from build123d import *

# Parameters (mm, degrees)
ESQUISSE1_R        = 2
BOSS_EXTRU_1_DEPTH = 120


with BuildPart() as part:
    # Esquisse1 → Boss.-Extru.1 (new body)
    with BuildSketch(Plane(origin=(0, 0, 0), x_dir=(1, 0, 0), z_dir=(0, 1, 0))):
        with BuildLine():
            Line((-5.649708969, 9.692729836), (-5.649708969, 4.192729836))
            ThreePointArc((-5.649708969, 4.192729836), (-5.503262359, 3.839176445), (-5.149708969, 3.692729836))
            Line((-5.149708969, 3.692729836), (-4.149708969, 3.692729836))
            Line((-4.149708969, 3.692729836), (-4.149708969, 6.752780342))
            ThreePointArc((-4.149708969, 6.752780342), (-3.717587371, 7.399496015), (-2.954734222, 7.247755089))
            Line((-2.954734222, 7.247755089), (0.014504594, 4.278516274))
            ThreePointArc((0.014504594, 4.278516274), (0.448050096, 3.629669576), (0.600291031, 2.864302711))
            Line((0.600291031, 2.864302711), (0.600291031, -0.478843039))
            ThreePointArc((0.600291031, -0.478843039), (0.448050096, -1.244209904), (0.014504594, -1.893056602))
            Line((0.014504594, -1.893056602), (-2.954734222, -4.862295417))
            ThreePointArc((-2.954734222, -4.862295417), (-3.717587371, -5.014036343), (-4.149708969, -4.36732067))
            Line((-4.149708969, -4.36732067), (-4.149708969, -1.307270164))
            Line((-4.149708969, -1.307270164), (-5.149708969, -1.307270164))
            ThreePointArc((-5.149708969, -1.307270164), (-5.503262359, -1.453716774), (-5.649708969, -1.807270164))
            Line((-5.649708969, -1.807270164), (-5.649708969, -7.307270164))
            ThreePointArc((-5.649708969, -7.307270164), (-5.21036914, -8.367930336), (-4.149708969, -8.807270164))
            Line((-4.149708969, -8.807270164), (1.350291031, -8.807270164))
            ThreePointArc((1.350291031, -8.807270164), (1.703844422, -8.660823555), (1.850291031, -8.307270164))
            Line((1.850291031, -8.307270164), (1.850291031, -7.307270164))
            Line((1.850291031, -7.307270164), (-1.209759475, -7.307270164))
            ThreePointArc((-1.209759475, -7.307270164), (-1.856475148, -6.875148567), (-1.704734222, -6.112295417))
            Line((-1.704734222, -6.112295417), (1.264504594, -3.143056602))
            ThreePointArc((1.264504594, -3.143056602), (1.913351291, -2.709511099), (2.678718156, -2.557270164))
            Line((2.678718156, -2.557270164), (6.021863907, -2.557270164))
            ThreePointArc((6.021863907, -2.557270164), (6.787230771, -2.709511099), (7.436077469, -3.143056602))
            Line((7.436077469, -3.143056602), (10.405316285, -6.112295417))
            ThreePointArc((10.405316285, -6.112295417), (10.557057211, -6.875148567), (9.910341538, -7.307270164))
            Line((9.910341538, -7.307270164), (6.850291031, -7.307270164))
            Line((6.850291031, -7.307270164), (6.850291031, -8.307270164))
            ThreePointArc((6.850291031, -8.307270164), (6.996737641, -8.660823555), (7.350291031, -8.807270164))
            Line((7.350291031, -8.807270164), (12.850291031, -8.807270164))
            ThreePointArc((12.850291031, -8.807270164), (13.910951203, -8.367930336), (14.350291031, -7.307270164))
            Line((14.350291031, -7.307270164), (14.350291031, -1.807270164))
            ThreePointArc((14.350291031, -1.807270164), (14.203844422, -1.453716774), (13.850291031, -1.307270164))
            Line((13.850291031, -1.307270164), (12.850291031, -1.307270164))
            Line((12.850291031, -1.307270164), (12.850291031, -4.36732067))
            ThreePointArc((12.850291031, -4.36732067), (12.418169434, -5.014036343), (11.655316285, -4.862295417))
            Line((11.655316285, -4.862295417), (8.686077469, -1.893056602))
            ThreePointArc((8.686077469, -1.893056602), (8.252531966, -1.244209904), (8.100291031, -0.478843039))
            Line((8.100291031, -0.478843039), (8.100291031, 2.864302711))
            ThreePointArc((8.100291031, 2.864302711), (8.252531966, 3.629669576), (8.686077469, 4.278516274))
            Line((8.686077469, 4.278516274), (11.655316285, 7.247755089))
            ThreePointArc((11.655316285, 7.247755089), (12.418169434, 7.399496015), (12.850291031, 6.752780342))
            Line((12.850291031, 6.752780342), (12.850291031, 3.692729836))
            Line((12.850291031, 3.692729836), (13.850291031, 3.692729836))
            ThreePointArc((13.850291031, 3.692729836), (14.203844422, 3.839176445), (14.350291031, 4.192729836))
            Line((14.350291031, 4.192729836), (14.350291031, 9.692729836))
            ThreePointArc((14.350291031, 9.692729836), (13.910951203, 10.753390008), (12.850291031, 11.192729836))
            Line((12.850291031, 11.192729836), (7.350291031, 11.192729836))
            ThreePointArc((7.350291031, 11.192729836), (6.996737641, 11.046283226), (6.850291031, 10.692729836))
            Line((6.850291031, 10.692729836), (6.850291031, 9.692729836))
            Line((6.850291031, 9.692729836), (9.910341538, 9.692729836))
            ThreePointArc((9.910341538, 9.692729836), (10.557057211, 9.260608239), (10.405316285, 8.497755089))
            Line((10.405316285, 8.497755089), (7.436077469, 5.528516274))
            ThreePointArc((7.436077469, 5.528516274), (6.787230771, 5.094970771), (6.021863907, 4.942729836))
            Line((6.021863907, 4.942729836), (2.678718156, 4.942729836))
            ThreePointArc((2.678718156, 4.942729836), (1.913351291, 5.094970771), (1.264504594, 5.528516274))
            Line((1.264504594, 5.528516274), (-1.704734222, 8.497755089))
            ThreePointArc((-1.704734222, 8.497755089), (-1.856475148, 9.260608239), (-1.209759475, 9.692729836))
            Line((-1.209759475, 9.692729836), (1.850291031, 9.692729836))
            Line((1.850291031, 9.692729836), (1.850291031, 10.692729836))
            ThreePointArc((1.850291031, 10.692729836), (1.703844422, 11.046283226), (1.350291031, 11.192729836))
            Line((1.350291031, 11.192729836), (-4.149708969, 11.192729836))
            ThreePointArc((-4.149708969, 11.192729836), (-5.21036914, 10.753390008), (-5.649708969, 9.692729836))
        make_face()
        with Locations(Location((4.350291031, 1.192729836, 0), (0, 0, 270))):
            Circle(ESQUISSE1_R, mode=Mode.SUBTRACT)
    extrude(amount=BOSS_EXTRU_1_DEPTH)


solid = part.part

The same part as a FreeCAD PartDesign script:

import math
import FreeCAD as App
import Part
import Sketcher
from FreeCAD import Vector
Q = App.Units.Quantity

doc = App.newDocument("Part")
params = doc.addObject("Spreadsheet::Sheet", "Params")
for row, (alias, value) in enumerate([
    ("sketch1_diameter", "4 mm"),
    ("sketch1_radius", "0.5 mm"),
    ("sketch1_radius2", "0.7 mm"),
    ("sketch1_radius3", "1.5 mm"),
    ("sketch1_width", "5.5 mm"),
    ("pad1_length", "120 mm"),
], start=1):
    params.set(f"A{row}", alias)
    params.set(f"B{row}", "=" + value)
    params.setAlias(f"B{row}", alias)

body = doc.addObject("PartDesign::Body", "Body")

# Sketch on XZ plane
sketch1 = doc.addObject("Sketcher::SketchObject", "Sketch")
body.addObject(sketch1)
sketch1.AttachmentSupport = (doc.XZ_Plane, [""])
sketch1.MapMode = "FlatFace"
sketch1.addGeometry(Part.LineSegment(Vector(-5.65, -9.69, 0), Vector(-5.65, -4.19, 0)), False)
sketch1.addGeometry(Part.ArcOfCircle(Part.Circle(Vector(-5.15, -4.19, 0), Vector(0, 0, 1), 0.5), math.radians(90), math.radians(180)), False)
sketch1.addGeometry(Part.LineSegment(Vector(-5.15, -3.69, 0), Vector(-4.15, -3.69, 0)), False)
sketch1.addGeometry(Part.LineSegment(Vector(-4.15, -3.69, 0), Vector(-4.15, -6.75, 0)), False)
sketch1.addGeometry(Part.ArcOfCircle(Part.Circle(Vector(-3.45, -6.75, 0), Vector(0, 0, 1), 0.7), math.radians(180), math.radians(315)), False)
sketch1.addGeometry(Part.LineSegment(Vector(-2.95, -7.25, 0), Vector(0.01, -4.28, 0)), False)
sketch1.addGeometry(Part.ArcOfCircle(Part.Circle(Vector(-1.4, -2.86, 0), Vector(0, 0, 1), 2), math.radians(-45), math.radians(0)), False)
sketch1.addGeometry(Part.LineSegment(Vector(0.6, -2.86, 0), Vector(0.6, 0.48, 0)), False)
sketch1.addGeometry(Part.ArcOfCircle(Part.Circle(Vector(-1.4, 0.48, 0), Vector(0, 0, 1), 2), math.radians(0), math.radians(45)), False)
sketch1.addGeometry(Part.LineSegment(Vector(0.01, 1.89, 0), Vector(-2.95, 4.86, 0)), False)
sketch1.addGeometry(Part.ArcOfCircle(Part.Circle(Vector(-3.45, 4.37, 0), Vector(0, 0, 1), 0.7), math.radians(45), math.radians(180)), False)
sketch1.addGeometry(Part.LineSegment(Vector(-4.15, 4.37, 0), Vector(-4.15, 1.31, 0)), False)
sketch1.addGeometry(Part.LineSegment(Vector(-4.15, 1.31, 0), Vector(-5.15, 1.31, 0)), False)
sketch1.addGeometry(Part.ArcOfCircle(Part.Circle(Vector(-5.15, 1.81, 0), Vector(0, 0, 1), 0.5), math.radians(-180), math.radians(-90)), False)
sketch1.addGeometry(Part.LineSegment(Vector(-5.65, 1.81, 0), Vector(-5.65, 7.31, 0)), False)
sketch1.addGeometry(Part.ArcOfCircle(Part.Circle(Vector(-4.15, 7.31, 0), Vector(0, 0, 1), 1.5), math.radians(90), math.radians(180)), False)
sketch1.addGeometry(Part.LineSegment(Vector(-4.15, 8.81, 0), Vector(1.35, 8.81, 0)), False)
sketch1.addGeometry(Part.ArcOfCircle(Part.Circle(Vector(1.35, 8.31, 0), Vector(0, 0, 1), 0.5), math.radians(0), math.radians(90)), False)
sketch1.addGeometry(Part.LineSegment(Vector(1.85, 8.31, 0), Vector(1.85, 7.31, 0)), False)
sketch1.addGeometry(Part.LineSegment(Vector(1.85, 7.31, 0), Vector(-1.21, 7.31, 0)), False)
sketch1.addGeometry(Part.ArcOfCircle(Part.Circle(Vector(-1.21, 6.61, 0), Vector(0, 0, 1), 0.7), math.radians(90), math.radians(225)), False)
sketch1.addGeometry(Part.LineSegment(Vector(-1.7, 6.11, 0), Vector(1.26, 3.14, 0)), False)
sketch1.addGeometry(Part.ArcOfCircle(Part.Circle(Vector(2.68, 4.56, 0), Vector(0, 0, 1), 2), math.radians(-135), math.radians(-90)), False)
sketch1.addGeometry(Part.LineSegment(Vector(2.68, 2.56, 0), Vector(6.02, 2.56, 0)), False)
sketch1.addGeometry(Part.ArcOfCircle(Part.Circle(Vector(6.02, 4.56, 0), Vector(0, 0, 1), 2), math.radians(-90), math.radians(-45)), False)
sketch1.addGeometry(Part.LineSegment(Vector(7.44, 3.14, 0), Vector(10.41, 6.11, 0)), False)
sketch1.addGeometry(Part.ArcOfCircle(Part.Circle(Vector(9.91, 6.61, 0), Vector(0, 0, 1), 0.7), math.radians(-45), math.radians(90)), False)
sketch1.addGeometry(Part.LineSegment(Vector(9.91, 7.31, 0), Vector(6.85, 7.31, 0)), False)
sketch1.addGeometry(Part.LineSegment(Vector(6.85, 7.31, 0), Vector(6.85, 8.31, 0)), False)
sketch1.addGeometry(Part.ArcOfCircle(Part.Circle(Vector(7.35, 8.31, 0), Vector(0, 0, 1), 0.5), math.radians(90), math.radians(180)), False)
sketch1.addGeometry(Part.LineSegment(Vector(7.35, 8.81, 0), Vector(12.85, 8.81, 0)), False)
sketch1.addGeometry(Part.ArcOfCircle(Part.Circle(Vector(12.85, 7.31, 0), Vector(0, 0, 1), 1.5), math.radians(0), math.radians(90)), False)
sketch1.addGeometry(Part.LineSegment(Vector(14.35, 7.31, 0), Vector(14.35, 1.81, 0)), False)
sketch1.addGeometry(Part.ArcOfCircle(Part.Circle(Vector(13.85, 1.81, 0), Vector(0, 0, 1), 0.5), math.radians(-90), math.radians(0)), False)
sketch1.addGeometry(Part.LineSegment(Vector(13.85, 1.31, 0), Vector(12.85, 1.31, 0)), False)
sketch1.addGeometry(Part.LineSegment(Vector(12.85, 1.31, 0), Vector(12.85, 4.37, 0)), False)
sketch1.addGeometry(Part.ArcOfCircle(Part.Circle(Vector(12.15, 4.37, 0), Vector(0, 0, 1), 0.7), math.radians(0), math.radians(135)), False)
sketch1.addGeometry(Part.LineSegment(Vector(11.66, 4.86, 0), Vector(8.69, 1.89, 0)), False)
sketch1.addGeometry(Part.ArcOfCircle(Part.Circle(Vector(10.1, 0.48, 0), Vector(0, 0, 1), 2), math.radians(135), math.radians(180)), False)
sketch1.addGeometry(Part.LineSegment(Vector(8.1, 0.48, 0), Vector(8.1, -2.86, 0)), False)
sketch1.addGeometry(Part.ArcOfCircle(Part.Circle(Vector(10.1, -2.86, 0), Vector(0, 0, 1), 2), math.radians(180), math.radians(225)), False)
sketch1.addGeometry(Part.LineSegment(Vector(8.69, -4.28, 0), Vector(11.66, -7.25, 0)), False)
sketch1.addGeometry(Part.ArcOfCircle(Part.Circle(Vector(12.15, -6.75, 0), Vector(0, 0, 1), 0.7), math.radians(-135), math.radians(0)), False)
sketch1.addGeometry(Part.LineSegment(Vector(12.85, -6.75, 0), Vector(12.85, -3.69, 0)), False)
sketch1.addGeometry(Part.LineSegment(Vector(12.85, -3.69, 0), Vector(13.85, -3.69, 0)), False)
sketch1.addGeometry(Part.ArcOfCircle(Part.Circle(Vector(13.85, -4.19, 0), Vector(0, 0, 1), 0.5), math.radians(0), math.radians(90)), False)
sketch1.addGeometry(Part.LineSegment(Vector(14.35, -4.19, 0), Vector(14.35, -9.69, 0)), False)
sketch1.addGeometry(Part.ArcOfCircle(Part.Circle(Vector(12.85, -9.69, 0), Vector(0, 0, 1), 1.5), math.radians(-90), math.radians(0)), False)
sketch1.addGeometry(Part.LineSegment(Vector(12.85, -11.19, 0), Vector(7.35, -11.19, 0)), False)
sketch1.addGeometry(Part.ArcOfCircle(Part.Circle(Vector(7.35, -10.69, 0), Vector(0, 0, 1), 0.5), math.radians(-180), math.radians(-90)), False)
sketch1.addGeometry(Part.LineSegment(Vector(6.85, -10.69, 0), Vector(6.85, -9.69, 0)), False)
sketch1.addGeometry(Part.LineSegment(Vector(6.85, -9.69, 0), Vector(9.91, -9.69, 0)), False)
sketch1.addGeometry(Part.ArcOfCircle(Part.Circle(Vector(9.91, -8.99, 0), Vector(0, 0, 1), 0.7), math.radians(-90), math.radians(45)), False)
sketch1.addGeometry(Part.LineSegment(Vector(10.41, -8.5, 0), Vector(7.44, -5.53, 0)), False)
sketch1.addGeometry(Part.ArcOfCircle(Part.Circle(Vector(6.02, -6.94, 0), Vector(0, 0, 1), 2), math.radians(45), math.radians(90)), False)
sketch1.addGeometry(Part.LineSegment(Vector(6.02, -4.94, 0), Vector(2.68, -4.94, 0)), False)
sketch1.addGeometry(Part.ArcOfCircle(Part.Circle(Vector(2.68, -6.94, 0), Vector(0, 0, 1), 2), math.radians(90), math.radians(135)), False)
sketch1.addGeometry(Part.LineSegment(Vector(1.26, -5.53, 0), Vector(-1.7, -8.5, 0)), False)
sketch1.addGeometry(Part.ArcOfCircle(Part.Circle(Vector(-1.21, -8.99, 0), Vector(0, 0, 1), 0.7), math.radians(135), math.radians(270)), False)
sketch1.addGeometry(Part.LineSegment(Vector(-1.21, -9.69, 0), Vector(1.85, -9.69, 0)), False)
sketch1.addGeometry(Part.LineSegment(Vector(1.85, -9.69, 0), Vector(1.85, -10.69, 0)), False)
sketch1.addGeometry(Part.ArcOfCircle(Part.Circle(Vector(1.35, -10.69, 0), Vector(0, 0, 1), 0.5), math.radians(-90), math.radians(0)), False)
sketch1.addGeometry(Part.LineSegment(Vector(1.35, -11.19, 0), Vector(-4.15, -11.19, 0)), False)
sketch1.addGeometry(Part.ArcOfCircle(Part.Circle(Vector(-4.15, -9.69, 0), Vector(0, 0, 1), 1.5), math.radians(-180), math.radians(-90)), False)
sketch1.addGeometry(Part.Circle(Vector(4.35, -1.19, 0), Vector(0, 0, 1), 2), False)
sketch1.addConstraint(Sketcher.Constraint("Tangent", 0, 2, 1, 2))
sketch1.addConstraint(Sketcher.Constraint("Tangent", 1, 1, 2, 1))
sketch1.addConstraint(Sketcher.Constraint("Coincident", 2, 2, 3, 1))
sketch1.addConstraint(Sketcher.Constraint("Tangent", 3, 2, 4, 1))
sketch1.addConstraint(Sketcher.Constraint("Tangent", 4, 2, 5, 1))
sketch1.addConstraint(Sketcher.Constraint("Tangent", 5, 2, 6, 1))
sketch1.addConstraint(Sketcher.Constraint("Tangent", 6, 2, 7, 1))
sketch1.addConstraint(Sketcher.Constraint("Tangent", 7, 2, 8, 1))
sketch1.addConstraint(Sketcher.Constraint("Tangent", 8, 2, 9, 1))
sketch1.addConstraint(Sketcher.Constraint("Tangent", 9, 2, 10, 1))
sketch1.addConstraint(Sketcher.Constraint("Tangent", 10, 2, 11, 1))
sketch1.addConstraint(Sketcher.Constraint("Coincident", 11, 2, 12, 1))
sketch1.addConstraint(Sketcher.Constraint("Tangent", 12, 2, 13, 2))
sketch1.addConstraint(Sketcher.Constraint("Tangent", 13, 1, 14, 1))
sketch1.addConstraint(Sketcher.Constraint("Tangent", 14, 2, 15, 2))
sketch1.addConstraint(Sketcher.Constraint("Tangent", 15, 1, 16, 1))
sketch1.addConstraint(Sketcher.Constraint("Tangent", 16, 2, 17, 2))
sketch1.addConstraint(Sketcher.Constraint("Tangent", 17, 1, 18, 1))
sketch1.addConstraint(Sketcher.Constraint("Coincident", 18, 2, 19, 1))
sketch1.addConstraint(Sketcher.Constraint("Tangent", 19, 2, 20, 1))
sketch1.addConstraint(Sketcher.Constraint("Tangent", 20, 2, 21, 1))
sketch1.addConstraint(Sketcher.Constraint("Tangent", 21, 2, 22, 1))
sketch1.addConstraint(Sketcher.Constraint("Tangent", 22, 2, 23, 1))
sketch1.addConstraint(Sketcher.Constraint("Tangent", 23, 2, 24, 1))
sketch1.addConstraint(Sketcher.Constraint("Tangent", 24, 2, 25, 1))
sketch1.addConstraint(Sketcher.Constraint("Tangent", 25, 2, 26, 1))
sketch1.addConstraint(Sketcher.Constraint("Tangent", 26, 2, 27, 1))
sketch1.addConstraint(Sketcher.Constraint("Coincident", 27, 2, 28, 1))
sketch1.addConstraint(Sketcher.Constraint("Tangent", 28, 2, 29, 2))
sketch1.addConstraint(Sketcher.Constraint("Tangent", 29, 1, 30, 1))
sketch1.addConstraint(Sketcher.Constraint("Tangent", 30, 2, 31, 2))
sketch1.addConstraint(Sketcher.Constraint("Tangent", 31, 1, 32, 1))
sketch1.addConstraint(Sketcher.Constraint("Tangent", 32, 2, 33, 2))
sketch1.addConstraint(Sketcher.Constraint("Tangent", 33, 1, 34, 1))
sketch1.addConstraint(Sketcher.Constraint("Coincident", 34, 2, 35, 1))
sketch1.addConstraint(Sketcher.Constraint("Tangent", 35, 2, 36, 1))
sketch1.addConstraint(Sketcher.Constraint("Tangent", 36, 2, 37, 1))
sketch1.addConstraint(Sketcher.Constraint("Tangent", 37, 2, 38, 1))
sketch1.addConstraint(Sketcher.Constraint("Tangent", 38, 2, 39, 1))
sketch1.addConstraint(Sketcher.Constraint("Tangent", 39, 2, 40, 1))
sketch1.addConstraint(Sketcher.Constraint("Tangent", 40, 2, 41, 1))
sketch1.addConstraint(Sketcher.Constraint("Tangent", 41, 2, 42, 1))
sketch1.addConstraint(Sketcher.Constraint("Tangent", 42, 2, 43, 1))
sketch1.addConstraint(Sketcher.Constraint("Coincident", 43, 2, 44, 1))
sketch1.addConstraint(Sketcher.Constraint("Tangent", 44, 2, 45, 2))
sketch1.addConstraint(Sketcher.Constraint("Tangent", 45, 1, 46, 1))
sketch1.addConstraint(Sketcher.Constraint("Tangent", 46, 2, 47, 2))
sketch1.addConstraint(Sketcher.Constraint("Tangent", 47, 1, 48, 1))
sketch1.addConstraint(Sketcher.Constraint("Tangent", 48, 2, 49, 2))
sketch1.addConstraint(Sketcher.Constraint("Tangent", 49, 1, 50, 1))
sketch1.addConstraint(Sketcher.Constraint("Coincident", 50, 2, 51, 1))
sketch1.addConstraint(Sketcher.Constraint("Tangent", 51, 2, 52, 1))
sketch1.addConstraint(Sketcher.Constraint("Tangent", 52, 2, 53, 1))
sketch1.addConstraint(Sketcher.Constraint("Tangent", 53, 2, 54, 1))
sketch1.addConstraint(Sketcher.Constraint("Tangent", 54, 2, 55, 1))
sketch1.addConstraint(Sketcher.Constraint("Tangent", 55, 2, 56, 1))
sketch1.addConstraint(Sketcher.Constraint("Tangent", 56, 2, 57, 1))
sketch1.addConstraint(Sketcher.Constraint("Tangent", 57, 2, 58, 1))
sketch1.addConstraint(Sketcher.Constraint("Tangent", 58, 2, 59, 1))
sketch1.addConstraint(Sketcher.Constraint("Coincident", 59, 2, 60, 1))
sketch1.addConstraint(Sketcher.Constraint("Tangent", 60, 2, 61, 2))
sketch1.addConstraint(Sketcher.Constraint("Tangent", 61, 1, 62, 1))
sketch1.addConstraint(Sketcher.Constraint("Tangent", 62, 2, 63, 2))
sketch1.addConstraint(Sketcher.Constraint("Tangent", 63, 1, 0, 1))
sketch1.addConstraint(Sketcher.Constraint("Vertical", 0))
sketch1.addConstraint(Sketcher.Constraint("Horizontal", 2))
sketch1.addConstraint(Sketcher.Constraint("Vertical", 3))
sketch1.addConstraint(Sketcher.Constraint("Vertical", 7))
sketch1.addConstraint(Sketcher.Constraint("Vertical", 11))
sketch1.addConstraint(Sketcher.Constraint("Horizontal", 12))
sketch1.addConstraint(Sketcher.Constraint("Vertical", 14))
sketch1.addConstraint(Sketcher.Constraint("Horizontal", 16))
sketch1.addConstraint(Sketcher.Constraint("Vertical", 18))
sketch1.addConstraint(Sketcher.Constraint("Horizontal", 19))
sketch1.addConstraint(Sketcher.Constraint("Horizontal", 23))
sketch1.addConstraint(Sketcher.Constraint("Horizontal", 27))
sketch1.addConstraint(Sketcher.Constraint("Vertical", 28))
sketch1.addConstraint(Sketcher.Constraint("Horizontal", 30))
sketch1.addConstraint(Sketcher.Constraint("Vertical", 32))
sketch1.addConstraint(Sketcher.Constraint("Horizontal", 34))
sketch1.addConstraint(Sketcher.Constraint("Vertical", 35))
sketch1.addConstraint(Sketcher.Constraint("Vertical", 39))
sketch1.addConstraint(Sketcher.Constraint("Vertical", 43))
sketch1.addConstraint(Sketcher.Constraint("Horizontal", 44))
sketch1.addConstraint(Sketcher.Constraint("Vertical", 46))
sketch1.addConstraint(Sketcher.Constraint("Horizontal", 48))
sketch1.addConstraint(Sketcher.Constraint("Vertical", 50))
sketch1.addConstraint(Sketcher.Constraint("Horizontal", 51))
sketch1.addConstraint(Sketcher.Constraint("Horizontal", 55))
sketch1.addConstraint(Sketcher.Constraint("Horizontal", 59))
sketch1.addConstraint(Sketcher.Constraint("Vertical", 60))
sketch1.addConstraint(Sketcher.Constraint("Horizontal", 62))
sketch1.addConstraint(Sketcher.Constraint("Equal", 6, 8))
sketch1.addConstraint(Sketcher.Constraint("Equal", 4, 10))
sketch1.addConstraint(Sketcher.Constraint("Equal", 1, 13))
sketch1.addConstraint(Sketcher.Constraint("Equal", 13, 17))
sketch1.addConstraint(Sketcher.Constraint("Equal", 10, 20))
sketch1.addConstraint(Sketcher.Constraint("Equal", 8, 22))
sketch1.addConstraint(Sketcher.Constraint("Equal", 22, 24))
sketch1.addConstraint(Sketcher.Constraint("Equal", 20, 26))
sketch1.addConstraint(Sketcher.Constraint("Equal", 17, 29))
sketch1.addConstraint(Sketcher.Constraint("Equal", 15, 31))
sketch1.addConstraint(Sketcher.Constraint("Equal", 29, 33))
sketch1.addConstraint(Sketcher.Constraint("Equal", 26, 36))
sketch1.addConstraint(Sketcher.Constraint("Equal", 24, 38))
sketch1.addConstraint(Sketcher.Constraint("Equal", 38, 40))
sketch1.addConstraint(Sketcher.Constraint("Equal", 36, 42))
sketch1.addConstraint(Sketcher.Constraint("Equal", 33, 45))
sketch1.addConstraint(Sketcher.Constraint("Equal", 31, 47))
sketch1.addConstraint(Sketcher.Constraint("Equal", 45, 49))
sketch1.addConstraint(Sketcher.Constraint("Equal", 42, 52))
sketch1.addConstraint(Sketcher.Constraint("Equal", 40, 54))
sketch1.addConstraint(Sketcher.Constraint("Equal", 54, 56))
sketch1.addConstraint(Sketcher.Constraint("Equal", 52, 58))
sketch1.addConstraint(Sketcher.Constraint("Equal", 49, 61))
sketch1.addConstraint(Sketcher.Constraint("Equal", 47, 63))
sketch1.addConstraint(Sketcher.Constraint("Equal", 56, 64))
sketch1.addConstraint(Sketcher.Constraint("Perpendicular", 5, 9))
sketch1.addConstraint(Sketcher.Constraint("Parallel", 9, 21))
sketch1.addConstraint(Sketcher.Constraint("Perpendicular", 21, 25))
sketch1.addConstraint(Sketcher.Constraint("Parallel", 25, 37))
sketch1.addConstraint(Sketcher.Constraint("Perpendicular", 37, 41))
sketch1.addConstraint(Sketcher.Constraint("Parallel", 41, 53))
sketch1.addConstraint(Sketcher.Constraint("Perpendicular", 53, 57))
sketch1.addConstraint(Sketcher.Constraint("Horizontal", 20, 3, 26, 3))
sketch1.addConstraint(Sketcher.Constraint("Horizontal", 17, 3, 29, 3))
sketch1.addConstraint(Sketcher.Constraint("Horizontal", 13, 3, 33, 3))
sketch1.addConstraint(Sketcher.Constraint("Horizontal", 10, 3, 36, 3))
sketch1.addConstraint(Sketcher.Constraint("Horizontal", 8, 3, 38, 3))
sketch1.addConstraint(Sketcher.Constraint("Horizontal", 6, 3, 40, 3))
sketch1.addConstraint(Sketcher.Constraint("Horizontal", 4, 3, 42, 3))
sketch1.addConstraint(Sketcher.Constraint("Horizontal", 1, 3, 45, 3))
sketch1.addConstraint(Sketcher.Constraint("Horizontal", 52, 3, 58, 3))
sketch1.addConstraint(Sketcher.Constraint("Horizontal", 49, 3, 61, 3))
sketch1.addConstraint(Sketcher.Constraint("Horizontal", 14, 2, 18, 2))
sketch1.addConstraint(Sketcher.Constraint("Horizontal", 21, 2, 24, 2))
sketch1.addConstraint(Sketcher.Constraint("Horizontal", 46, 2, 50, 2))
sketch1.addConstraint(Sketcher.Constraint("Vertical", 4, 3, 10, 3))
sketch1.addConstraint(Sketcher.Constraint("Vertical", 1, 3, 13, 3))
sketch1.addConstraint(Sketcher.Constraint("Vertical", 33, 3, 45, 3))
sketch1.addConstraint(Sketcher.Constraint("Vertical", 29, 3, 49, 3))
sketch1.addConstraint(Sketcher.Constraint("Vertical", 26, 3, 52, 3))
sketch1.addConstraint(Sketcher.Constraint("Vertical", 24, 3, 54, 3))
sketch1.addConstraint(Sketcher.Constraint("Vertical", 22, 3, 56, 3))
sketch1.addConstraint(Sketcher.Constraint("Vertical", 17, 3, 61, 3))
sketch1.addConstraint(Sketcher.Constraint("Vertical", 63, 3, 2, 2))
sketch1.addConstraint(Sketcher.Constraint("Vertical", 30, 2, 34, 2))
sketch1.addConstraint(Sketcher.Constraint("Equal", 19, 27))
sketch1.addConstraint(Sketcher.Constraint("Equal", 16, 30))
sketch1.addConstraint(Sketcher.Constraint("Equal", 62, 0))
sketch1.addConstraint(Sketcher.Constraint("Equal", 59, 3))
sketch1.addConstraint(Sketcher.Constraint("Equal", 55, 7))
sketch1.addConstraint(Sketcher.Constraint("Equal", 3, 11))
sketch1.addConstraint(Sketcher.Constraint("Equal", 0, 14))
sketch1.addConstraint(Sketcher.Constraint("Equal", 9, 21))
sketch1.addConstraint(Sketcher.Constraint("Diameter", 64, Q("4 mm")))
sketch1.addConstraint(Sketcher.Constraint("Radius", 1, Q("0.5 mm")))
sketch1.addConstraint(Sketcher.Constraint("Radius", 4, Q("0.7 mm")))
sketch1.addConstraint(Sketcher.Constraint("Radius", 15, Q("1.5 mm")))
sketch1.addConstraint(Sketcher.Constraint("DistanceX", 16, 1, 16, 2, Q("5.5 mm")))
sketch1.addConstraint(Sketcher.Constraint("DistanceX", 19, 2, 19, 1, Q("3.060051 mm")))
sketch1.addConstraint(Sketcher.Constraint("DistanceX", 23, 1, 23, 2, Q("3.343146 mm")))
sketch1.addConstraint(Sketcher.Constraint("DistanceX", 1, 3, -1, 1, Q("5.149709 mm")))
sketch1.addConstraint(Sketcher.Constraint("DistanceY", 1, 3, -1, 1, Q("4.19273 mm")))
sketch1.addConstraint(Sketcher.Constraint("DistanceX", 6, 3, -1, 1, Q("1.399709 mm")))
sketch1.addConstraint(Sketcher.Constraint("DistanceX", -1, 1, 64, 3, Q("4.350291 mm")))
sketch1.addConstraint(Sketcher.Constraint("DistanceY", 64, 3, -1, 1, Q("1.19273 mm")))
sketch1.setExpression("Constraints[155]", "Params.sketch1_diameter")
sketch1.setExpression("Constraints[156]", "Params.sketch1_radius")
sketch1.setExpression("Constraints[157]", "Params.sketch1_radius2")
sketch1.setExpression("Constraints[158]", "Params.sketch1_radius3")
sketch1.setExpression("Constraints[159]", "Params.sketch1_width")
pad1 = doc.addObject("PartDesign::Pad", "Pad")
body.addObject(pad1)
pad1.Profile = sketch1
pad1.setExpression("Length", "Params.pad1_length")
pad1.Reversed = True

doc.recompute()
